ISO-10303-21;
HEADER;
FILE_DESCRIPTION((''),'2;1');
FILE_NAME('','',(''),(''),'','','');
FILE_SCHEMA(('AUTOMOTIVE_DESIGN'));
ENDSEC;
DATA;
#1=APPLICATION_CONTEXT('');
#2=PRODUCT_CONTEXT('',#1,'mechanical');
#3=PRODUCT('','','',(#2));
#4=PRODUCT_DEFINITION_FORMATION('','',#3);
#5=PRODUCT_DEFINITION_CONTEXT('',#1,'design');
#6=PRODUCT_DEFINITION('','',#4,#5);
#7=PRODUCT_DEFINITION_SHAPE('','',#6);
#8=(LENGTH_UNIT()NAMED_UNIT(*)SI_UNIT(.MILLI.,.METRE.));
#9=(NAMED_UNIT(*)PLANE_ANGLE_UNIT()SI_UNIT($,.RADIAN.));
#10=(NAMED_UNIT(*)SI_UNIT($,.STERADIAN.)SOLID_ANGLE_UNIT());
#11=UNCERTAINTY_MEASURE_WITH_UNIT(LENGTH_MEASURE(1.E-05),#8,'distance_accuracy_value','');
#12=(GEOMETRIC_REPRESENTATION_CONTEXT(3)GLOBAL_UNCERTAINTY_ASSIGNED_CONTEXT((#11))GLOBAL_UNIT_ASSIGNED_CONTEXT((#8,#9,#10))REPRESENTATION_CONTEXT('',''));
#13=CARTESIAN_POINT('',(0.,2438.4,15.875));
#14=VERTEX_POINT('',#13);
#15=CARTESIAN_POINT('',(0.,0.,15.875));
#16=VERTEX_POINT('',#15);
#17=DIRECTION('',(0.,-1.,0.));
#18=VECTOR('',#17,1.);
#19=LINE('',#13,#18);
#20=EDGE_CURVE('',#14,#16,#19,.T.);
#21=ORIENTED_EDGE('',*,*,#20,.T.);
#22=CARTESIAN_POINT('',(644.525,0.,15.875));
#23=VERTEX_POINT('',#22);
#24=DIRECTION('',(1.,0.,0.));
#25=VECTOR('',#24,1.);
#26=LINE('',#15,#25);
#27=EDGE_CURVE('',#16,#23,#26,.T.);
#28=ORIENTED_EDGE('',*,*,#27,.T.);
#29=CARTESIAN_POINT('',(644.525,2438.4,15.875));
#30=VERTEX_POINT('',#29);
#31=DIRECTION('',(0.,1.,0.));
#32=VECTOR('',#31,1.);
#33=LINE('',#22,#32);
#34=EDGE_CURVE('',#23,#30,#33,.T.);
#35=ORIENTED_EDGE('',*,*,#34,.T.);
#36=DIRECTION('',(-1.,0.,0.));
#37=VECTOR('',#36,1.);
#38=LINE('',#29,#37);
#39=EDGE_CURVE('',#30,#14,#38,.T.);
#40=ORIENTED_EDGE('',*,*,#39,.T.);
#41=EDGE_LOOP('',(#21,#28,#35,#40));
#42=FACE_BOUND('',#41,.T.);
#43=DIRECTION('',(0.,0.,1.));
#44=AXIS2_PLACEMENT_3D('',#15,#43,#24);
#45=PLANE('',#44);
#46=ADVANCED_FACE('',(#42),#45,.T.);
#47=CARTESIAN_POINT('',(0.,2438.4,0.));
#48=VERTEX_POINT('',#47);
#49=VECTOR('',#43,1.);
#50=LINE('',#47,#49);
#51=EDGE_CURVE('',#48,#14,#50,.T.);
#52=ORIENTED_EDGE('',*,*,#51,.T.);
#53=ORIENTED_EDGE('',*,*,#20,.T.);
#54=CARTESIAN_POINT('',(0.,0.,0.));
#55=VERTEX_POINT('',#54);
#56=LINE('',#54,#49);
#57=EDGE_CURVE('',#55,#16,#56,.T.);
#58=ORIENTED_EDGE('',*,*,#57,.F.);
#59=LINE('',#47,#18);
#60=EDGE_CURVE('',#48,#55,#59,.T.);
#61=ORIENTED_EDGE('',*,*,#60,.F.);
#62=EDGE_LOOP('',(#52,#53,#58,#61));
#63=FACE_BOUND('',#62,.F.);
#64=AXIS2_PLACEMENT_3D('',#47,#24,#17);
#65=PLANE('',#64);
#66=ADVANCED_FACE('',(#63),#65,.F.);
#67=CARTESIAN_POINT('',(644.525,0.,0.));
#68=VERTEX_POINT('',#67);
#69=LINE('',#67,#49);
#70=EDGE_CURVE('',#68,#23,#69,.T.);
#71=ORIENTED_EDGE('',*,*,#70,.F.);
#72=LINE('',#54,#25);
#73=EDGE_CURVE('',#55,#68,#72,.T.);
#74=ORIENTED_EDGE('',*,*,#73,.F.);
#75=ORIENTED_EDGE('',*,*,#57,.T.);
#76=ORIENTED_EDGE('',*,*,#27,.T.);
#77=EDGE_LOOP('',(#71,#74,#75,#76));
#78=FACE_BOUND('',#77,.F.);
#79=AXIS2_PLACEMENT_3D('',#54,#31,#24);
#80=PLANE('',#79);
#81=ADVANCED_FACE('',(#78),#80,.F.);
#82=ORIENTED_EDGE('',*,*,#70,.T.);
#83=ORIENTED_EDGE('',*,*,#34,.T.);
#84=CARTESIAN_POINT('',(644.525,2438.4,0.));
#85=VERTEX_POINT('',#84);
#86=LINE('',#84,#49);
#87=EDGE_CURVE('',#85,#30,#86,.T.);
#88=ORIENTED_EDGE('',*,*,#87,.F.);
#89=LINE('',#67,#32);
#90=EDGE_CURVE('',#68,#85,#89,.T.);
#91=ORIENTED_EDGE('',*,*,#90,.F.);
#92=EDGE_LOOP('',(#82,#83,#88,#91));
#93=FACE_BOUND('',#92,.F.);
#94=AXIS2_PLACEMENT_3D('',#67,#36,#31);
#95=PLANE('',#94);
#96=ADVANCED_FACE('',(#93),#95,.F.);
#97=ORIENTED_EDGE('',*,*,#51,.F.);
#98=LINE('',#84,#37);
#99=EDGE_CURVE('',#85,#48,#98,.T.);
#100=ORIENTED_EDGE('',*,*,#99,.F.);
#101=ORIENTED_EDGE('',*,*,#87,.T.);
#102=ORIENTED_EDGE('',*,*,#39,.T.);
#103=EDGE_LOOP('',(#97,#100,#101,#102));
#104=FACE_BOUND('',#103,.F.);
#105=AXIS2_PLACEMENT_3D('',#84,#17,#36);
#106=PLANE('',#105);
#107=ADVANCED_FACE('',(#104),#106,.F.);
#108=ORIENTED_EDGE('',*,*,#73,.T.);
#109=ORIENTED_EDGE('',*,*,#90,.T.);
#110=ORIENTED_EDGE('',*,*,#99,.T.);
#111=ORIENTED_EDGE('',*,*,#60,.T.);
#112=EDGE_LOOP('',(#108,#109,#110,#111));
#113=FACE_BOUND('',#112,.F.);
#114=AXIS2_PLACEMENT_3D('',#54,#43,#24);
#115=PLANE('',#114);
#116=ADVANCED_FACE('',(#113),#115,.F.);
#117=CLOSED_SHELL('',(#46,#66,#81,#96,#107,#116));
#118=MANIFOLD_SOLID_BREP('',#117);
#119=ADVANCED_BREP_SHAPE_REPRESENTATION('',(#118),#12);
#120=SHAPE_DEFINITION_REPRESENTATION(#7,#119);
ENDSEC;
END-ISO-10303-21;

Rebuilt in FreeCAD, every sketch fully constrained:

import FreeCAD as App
import Part
import Sketcher
Q = App.Units.Quantity


def add_polygon(sketch, points):
    """Adds a closed chain of lines whose ends are joined by coincident constraints."""
    first, n = sketch.GeometryCount, len(points)
    for a, b in zip(points, points[1:] + points[:1]):
        sketch.addGeometry(Part.LineSegment(App.Vector(*a, 0), App.Vector(*b, 0)), False)
    for i in range(n):
        sketch.addConstraint(Sketcher.Constraint("Coincident", first + i, 2, first + (i + 1) % n, 1))

doc = App.newDocument("Part")
params = doc.addObject("Spreadsheet::Sheet", "Params")
for row, (alias, value) in enumerate([
    ("sketch1_height", "96 in"),
    ("sketch1_width", "25.375 in"),
    ("pad1_length", "0.625 in"),
], start=1):
    params.set(f"A{row}", alias)
    params.set(f"B{row}", "=" + value)
    params.setAlias(f"B{row}", alias)

body = doc.addObject("PartDesign::Body", "Body")

sketch1 = body.newObject("Sketcher::SketchObject", "Sketch")
sketch1.AttachmentSupport = (doc.getObject("XY_Plane"), [""])
sketch1.MapMode = "FlatFace"
add_polygon(sketch1, [(0, 2438), (0, 0), (645, 0), (645, 2438)])
sketch1.addConstraint([
    Sketcher.Constraint("Vertical", 0),
    Sketcher.Constraint("Horizontal", 1),
    Sketcher.Constraint("Vertical", 2),
    Sketcher.Constraint("Horizontal", 3),
    Sketcher.Constraint("Coincident", 0, 2, -1, 1),
    Sketcher.Constraint("DistanceY", 0, 2, 0, 1, Q("96 in")),
    Sketcher.Constraint("DistanceX", 1, 1, 1, 2, Q("25.375 in")),
])
sketch1.setExpression("Constraints[9]", "Params.sketch1_height")
sketch1.setExpression("Constraints[10]", "Params.sketch1_width")
pad1 = body.newObject("PartDesign::Pad", "Pad")
pad1.Profile = sketch1
pad1.setExpression("Length", "Params.pad1_length")

doc.recompute()
